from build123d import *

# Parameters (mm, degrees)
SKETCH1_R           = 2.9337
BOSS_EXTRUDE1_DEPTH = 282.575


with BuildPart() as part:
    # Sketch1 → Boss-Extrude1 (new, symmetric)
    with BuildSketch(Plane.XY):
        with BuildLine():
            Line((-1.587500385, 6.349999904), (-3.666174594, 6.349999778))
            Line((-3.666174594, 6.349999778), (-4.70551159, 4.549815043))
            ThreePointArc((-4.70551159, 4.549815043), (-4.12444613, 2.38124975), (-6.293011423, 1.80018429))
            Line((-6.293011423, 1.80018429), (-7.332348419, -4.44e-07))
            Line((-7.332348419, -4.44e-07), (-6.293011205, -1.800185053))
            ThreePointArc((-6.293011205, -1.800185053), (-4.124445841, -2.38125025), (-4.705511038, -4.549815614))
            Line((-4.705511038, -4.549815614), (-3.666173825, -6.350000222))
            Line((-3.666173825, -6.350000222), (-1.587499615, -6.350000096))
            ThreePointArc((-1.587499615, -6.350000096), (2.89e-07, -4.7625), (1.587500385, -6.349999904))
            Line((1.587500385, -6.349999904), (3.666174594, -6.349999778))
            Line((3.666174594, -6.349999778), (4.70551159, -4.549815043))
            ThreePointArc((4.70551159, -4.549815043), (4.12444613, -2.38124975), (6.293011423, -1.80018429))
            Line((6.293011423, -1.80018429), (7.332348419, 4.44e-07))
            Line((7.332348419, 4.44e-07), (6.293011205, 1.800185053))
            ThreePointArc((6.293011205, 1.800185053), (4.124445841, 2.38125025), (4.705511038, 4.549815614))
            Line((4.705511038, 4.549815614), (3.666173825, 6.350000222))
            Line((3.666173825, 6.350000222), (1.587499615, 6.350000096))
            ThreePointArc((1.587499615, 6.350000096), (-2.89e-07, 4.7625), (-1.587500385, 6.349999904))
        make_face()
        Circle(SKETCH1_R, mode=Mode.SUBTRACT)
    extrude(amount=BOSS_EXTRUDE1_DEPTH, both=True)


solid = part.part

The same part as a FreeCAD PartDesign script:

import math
import FreeCAD as App
import Part
import Sketcher
from FreeCAD import Vector
Q = App.Units.Quantity

doc = App.newDocument("Part")
body = doc.addObject("PartDesign::Body", "Body")

sketch1 = body.newObject("Sketcher::SketchObject", "Sketch")
sketch1.AttachmentSupport = (doc.getObject("XY_Plane"), [""])
sketch1.MapMode = "FlatFace"
sketch1.addGeometry(Part.LineSegment(Vector(-1.6, 6.3, 0), Vector(-3.7, 6.3, 0)), False)
sketch1.addGeometry(Part.LineSegment(Vector(-3.7, 6.3, 0), Vector(-4.7, 4.5, 0)), False)
sketch1.addGeometry(Part.ArcOfCircle(Part.Circle(Vector(-5.5, 3.2, 0), Vector(0, 0, 1), 1.6), math.radians(-120), math.radians(60)), False)
sketch1.addGeometry(Part.LineSegment(Vector(-6.3, 1.8, 0), Vector(-7.3, 0, 0)), False)
sketch1.addGeometry(Part.LineSegment(Vector(-7.3, 0, 0), Vector(-6.3, -1.8, 0)), False)
sketch1.addGeometry(Part.ArcOfCircle(Part.Circle(Vector(-5.5, -3.2, 0), Vector(0, 0, 1), 1.6), math.radians(-60), math.radians(120)), False)
sketch1.addGeometry(Part.LineSegment(Vector(-4.7, -4.5, 0), Vector(-3.7, -6.4, 0)), False)
sketch1.addGeometry(Part.LineSegment(Vector(-3.7, -6.4, 0), Vector(-1.6, -6.4, 0)), False)
sketch1.addGeometry(Part.ArcOfCircle(Part.Circle(Vector(0, -6.3, 0), Vector(0, 0, 1), 1.6), math.radians(0), math.radians(180)), False)
sketch1.addGeometry(Part.LineSegment(Vector(1.6, -6.3, 0), Vector(3.7, -6.3, 0)), False)
sketch1.addGeometry(Part.LineSegment(Vector(3.7, -6.3, 0), Vector(4.7, -4.5, 0)), False)
sketch1.addGeometry(Part.ArcOfCircle(Part.Circle(Vector(5.5, -3.2, 0), Vector(0, 0, 1), 1.6), math.radians(60), math.radians(240)), False)
sketch1.addGeometry(Part.LineSegment(Vector(6.3, -1.8, 0), Vector(7.3, 0, 0)), False)
sketch1.addGeometry(Part.LineSegment(Vector(7.3, 0, 0), Vector(6.3, 1.8, 0)), False)
sketch1.addGeometry(Part.ArcOfCircle(Part.Circle(Vector(5.5, 3.2, 0), Vector(0, 0, 1), 1.6), math.radians(120), math.radians(300)), False)
sketch1.addGeometry(Part.LineSegment(Vector(4.7, 4.5, 0), Vector(3.7, 6.4, 0)), False)
sketch1.addGeometry(Part.LineSegment(Vector(3.7, 6.4, 0), Vector(1.6, 6.4, 0)), False)
sketch1.addGeometry(Part.ArcOfCircle(Part.Circle(Vector(0, 6.3, 0), Vector(0, 0, 1), 1.6), math.radians(-180), math.radians(0)), False)
sketch1.addGeometry(Part.Circle(Vector(0, 0, 0), Vector(0, 0, 1), 2.9), False)
sketch1.addConstraint(Sketcher.Constraint("Coincident", 0, 2, 1, 1))
sketch1.addConstraint(Sketcher.Constraint("Coincident", 1, 2, 2, 2))
sketch1.addConstraint(Sketcher.Constraint("Coincident", 2, 1, 3, 1))
sketch1.addConstraint(Sketcher.Constraint("Coincident", 3, 2, 4, 1))
sketch1.addConstraint(Sketcher.Constraint("Coincident", 4, 2, 5, 2))
sketch1.addConstraint(Sketcher.Constraint("Coincident", 5, 1, 6, 1))
sketch1.addConstraint(Sketcher.Constraint("Coincident", 6, 2, 7, 1))
sketch1.addConstraint(Sketcher.Constraint("Coincident", 7, 2, 8, 2))
sketch1.addConstraint(Sketcher.Constraint("Coincident", 8, 1, 9, 1))
sketch1.addConstraint(Sketcher.Constraint("Coincident", 9, 2, 10, 1))
sketch1.addConstraint(Sketcher.Constraint("Coincident", 10, 2, 11, 2))
sketch1.addConstraint(Sketcher.Constraint("Coincident", 11, 1, 12, 1))
sketch1.addConstraint(Sketcher.Constraint("Coincident", 12, 2, 13, 1))
sketch1.addConstraint(Sketcher.Constraint("Coincident", 13, 2, 14, 2))
sketch1.addConstraint(Sketcher.Constraint("Coincident", 14, 1, 15, 1))
sketch1.addConstraint(Sketcher.Constraint("Coincident", 15, 2, 16, 1))
sketch1.addConstraint(Sketcher.Constraint("Coincident", 16, 2, 17, 2))
sketch1.addConstraint(Sketcher.Constraint("Coincident", 17, 1, 0, 1))
sketch1.addConstraint(Sketcher.Constraint("Horizontal", 0))
sketch1.addConstraint(Sketcher.Constraint("Horizontal", 7))
sketch1.addConstraint(Sketcher.Constraint("Horizontal", 9))
sketch1.addConstraint(Sketcher.Constraint("Horizontal", 16))
sketch1.addConstraint(Sketcher.Constraint("Coincident", 18, 3, -1, 1))
sketch1.addConstraint(Sketcher.Constraint("Equal", 2, 5))
sketch1.addConstraint(Sketcher.Constraint("Equal", 5, 8))
sketch1.addConstraint(Sketcher.Constraint("Equal", 8, 11))
sketch1.addConstraint(Sketcher.Constraint("Equal", 11, 14))
sketch1.addConstraint(Sketcher.Constraint("Equal", 14, 17))
sketch1.addConstraint(Sketcher.Constraint("Symmetric", 2, 3, 11, 3, -1, 1))
sketch1.addConstraint(Sketcher.Constraint("Symmetric", 5, 3, 14, 3, -1, 1))
sketch1.addConstraint(Sketcher.Constraint("Symmetric", 8, 3, 17, 3, -1, 1))
sketch1.addConstraint(Sketcher.Constraint("Symmetric", 0, 2, 9, 2, -1, 1))
sketch1.addConstraint(Sketcher.Constraint("Symmetric", 3, 2, 12, 2, -1, 1))
sketch1.addConstraint(Sketcher.Constraint("Symmetric", 6, 2, 15, 2, -1, 1))
sketch1.addConstraint(Sketcher.Constraint("Symmetric", 5, 3, 11, 3, -2))
sketch1.addConstraint(Sketcher.Constraint("Symmetric", 7, 2, 8, 1, -2))
sketch1.addConstraint(Sketcher.Constraint("PointOnObject", 3, 2, -1))
sketch1.addConstraint(Sketcher.Constraint("Parallel", 1, 3))
sketch1.addConstraint(Sketcher.Constraint("Parallel", 4, 6))
sketch1.addConstraint(Sketcher.Constraint("Parallel", 3, 10))
sketch1.addConstraint(Sketcher.Constraint("Parallel", 10, 12))
sketch1.addConstraint(Sketcher.Constraint("Parallel", 6, 13))
sketch1.addConstraint(Sketcher.Constraint("Parallel", 13, 15))
sketch1.addConstraint(Sketcher.Constraint("Horizontal", 17, 3, 0, 2))
sketch1.addConstraint(Sketcher.Constraint("Horizontal", 5, 1, 10, 2))
sketch1.addConstraint(Sketcher.Constraint("Horizontal", 4, 2, 11, 1))
sketch1.addConstraint(Sketcher.Constraint("Equal", 1, 3))
sketch1.addConstraint(Sketcher.Constraint("Diameter", 18, Q("0.231 in")))
sketch1.addConstraint(Sketcher.Constraint("Angle", 1, Q("-119.999997 deg")))
sketch1.addConstraint(Sketcher.Constraint("Radius", 2, Q("0.0625 in")))
sketch1.addConstraint(Sketcher.Constraint("DistanceY", 8, 3, 17, 3, Q("0.5 in")))
sketch1.addConstraint(Sketcher.Constraint("DistanceY", 5, 3, 2, 3, Q("0.25 in")))
sketch1.addConstraint(Sketcher.Constraint("DistanceX", 2, 3, 1, 2, Q("0.03125 in")))
sketch1.addConstraint(Sketcher.Constraint("DistanceX", 0, 2, 0, 1, 2.078674))
pad1 = body.newObject("PartDesign::Pad", "Pad")
pad1.Profile = sketch1
pad1.Length = Q("22.25 in")
pad1.Midplane = True

doc.recompute()
